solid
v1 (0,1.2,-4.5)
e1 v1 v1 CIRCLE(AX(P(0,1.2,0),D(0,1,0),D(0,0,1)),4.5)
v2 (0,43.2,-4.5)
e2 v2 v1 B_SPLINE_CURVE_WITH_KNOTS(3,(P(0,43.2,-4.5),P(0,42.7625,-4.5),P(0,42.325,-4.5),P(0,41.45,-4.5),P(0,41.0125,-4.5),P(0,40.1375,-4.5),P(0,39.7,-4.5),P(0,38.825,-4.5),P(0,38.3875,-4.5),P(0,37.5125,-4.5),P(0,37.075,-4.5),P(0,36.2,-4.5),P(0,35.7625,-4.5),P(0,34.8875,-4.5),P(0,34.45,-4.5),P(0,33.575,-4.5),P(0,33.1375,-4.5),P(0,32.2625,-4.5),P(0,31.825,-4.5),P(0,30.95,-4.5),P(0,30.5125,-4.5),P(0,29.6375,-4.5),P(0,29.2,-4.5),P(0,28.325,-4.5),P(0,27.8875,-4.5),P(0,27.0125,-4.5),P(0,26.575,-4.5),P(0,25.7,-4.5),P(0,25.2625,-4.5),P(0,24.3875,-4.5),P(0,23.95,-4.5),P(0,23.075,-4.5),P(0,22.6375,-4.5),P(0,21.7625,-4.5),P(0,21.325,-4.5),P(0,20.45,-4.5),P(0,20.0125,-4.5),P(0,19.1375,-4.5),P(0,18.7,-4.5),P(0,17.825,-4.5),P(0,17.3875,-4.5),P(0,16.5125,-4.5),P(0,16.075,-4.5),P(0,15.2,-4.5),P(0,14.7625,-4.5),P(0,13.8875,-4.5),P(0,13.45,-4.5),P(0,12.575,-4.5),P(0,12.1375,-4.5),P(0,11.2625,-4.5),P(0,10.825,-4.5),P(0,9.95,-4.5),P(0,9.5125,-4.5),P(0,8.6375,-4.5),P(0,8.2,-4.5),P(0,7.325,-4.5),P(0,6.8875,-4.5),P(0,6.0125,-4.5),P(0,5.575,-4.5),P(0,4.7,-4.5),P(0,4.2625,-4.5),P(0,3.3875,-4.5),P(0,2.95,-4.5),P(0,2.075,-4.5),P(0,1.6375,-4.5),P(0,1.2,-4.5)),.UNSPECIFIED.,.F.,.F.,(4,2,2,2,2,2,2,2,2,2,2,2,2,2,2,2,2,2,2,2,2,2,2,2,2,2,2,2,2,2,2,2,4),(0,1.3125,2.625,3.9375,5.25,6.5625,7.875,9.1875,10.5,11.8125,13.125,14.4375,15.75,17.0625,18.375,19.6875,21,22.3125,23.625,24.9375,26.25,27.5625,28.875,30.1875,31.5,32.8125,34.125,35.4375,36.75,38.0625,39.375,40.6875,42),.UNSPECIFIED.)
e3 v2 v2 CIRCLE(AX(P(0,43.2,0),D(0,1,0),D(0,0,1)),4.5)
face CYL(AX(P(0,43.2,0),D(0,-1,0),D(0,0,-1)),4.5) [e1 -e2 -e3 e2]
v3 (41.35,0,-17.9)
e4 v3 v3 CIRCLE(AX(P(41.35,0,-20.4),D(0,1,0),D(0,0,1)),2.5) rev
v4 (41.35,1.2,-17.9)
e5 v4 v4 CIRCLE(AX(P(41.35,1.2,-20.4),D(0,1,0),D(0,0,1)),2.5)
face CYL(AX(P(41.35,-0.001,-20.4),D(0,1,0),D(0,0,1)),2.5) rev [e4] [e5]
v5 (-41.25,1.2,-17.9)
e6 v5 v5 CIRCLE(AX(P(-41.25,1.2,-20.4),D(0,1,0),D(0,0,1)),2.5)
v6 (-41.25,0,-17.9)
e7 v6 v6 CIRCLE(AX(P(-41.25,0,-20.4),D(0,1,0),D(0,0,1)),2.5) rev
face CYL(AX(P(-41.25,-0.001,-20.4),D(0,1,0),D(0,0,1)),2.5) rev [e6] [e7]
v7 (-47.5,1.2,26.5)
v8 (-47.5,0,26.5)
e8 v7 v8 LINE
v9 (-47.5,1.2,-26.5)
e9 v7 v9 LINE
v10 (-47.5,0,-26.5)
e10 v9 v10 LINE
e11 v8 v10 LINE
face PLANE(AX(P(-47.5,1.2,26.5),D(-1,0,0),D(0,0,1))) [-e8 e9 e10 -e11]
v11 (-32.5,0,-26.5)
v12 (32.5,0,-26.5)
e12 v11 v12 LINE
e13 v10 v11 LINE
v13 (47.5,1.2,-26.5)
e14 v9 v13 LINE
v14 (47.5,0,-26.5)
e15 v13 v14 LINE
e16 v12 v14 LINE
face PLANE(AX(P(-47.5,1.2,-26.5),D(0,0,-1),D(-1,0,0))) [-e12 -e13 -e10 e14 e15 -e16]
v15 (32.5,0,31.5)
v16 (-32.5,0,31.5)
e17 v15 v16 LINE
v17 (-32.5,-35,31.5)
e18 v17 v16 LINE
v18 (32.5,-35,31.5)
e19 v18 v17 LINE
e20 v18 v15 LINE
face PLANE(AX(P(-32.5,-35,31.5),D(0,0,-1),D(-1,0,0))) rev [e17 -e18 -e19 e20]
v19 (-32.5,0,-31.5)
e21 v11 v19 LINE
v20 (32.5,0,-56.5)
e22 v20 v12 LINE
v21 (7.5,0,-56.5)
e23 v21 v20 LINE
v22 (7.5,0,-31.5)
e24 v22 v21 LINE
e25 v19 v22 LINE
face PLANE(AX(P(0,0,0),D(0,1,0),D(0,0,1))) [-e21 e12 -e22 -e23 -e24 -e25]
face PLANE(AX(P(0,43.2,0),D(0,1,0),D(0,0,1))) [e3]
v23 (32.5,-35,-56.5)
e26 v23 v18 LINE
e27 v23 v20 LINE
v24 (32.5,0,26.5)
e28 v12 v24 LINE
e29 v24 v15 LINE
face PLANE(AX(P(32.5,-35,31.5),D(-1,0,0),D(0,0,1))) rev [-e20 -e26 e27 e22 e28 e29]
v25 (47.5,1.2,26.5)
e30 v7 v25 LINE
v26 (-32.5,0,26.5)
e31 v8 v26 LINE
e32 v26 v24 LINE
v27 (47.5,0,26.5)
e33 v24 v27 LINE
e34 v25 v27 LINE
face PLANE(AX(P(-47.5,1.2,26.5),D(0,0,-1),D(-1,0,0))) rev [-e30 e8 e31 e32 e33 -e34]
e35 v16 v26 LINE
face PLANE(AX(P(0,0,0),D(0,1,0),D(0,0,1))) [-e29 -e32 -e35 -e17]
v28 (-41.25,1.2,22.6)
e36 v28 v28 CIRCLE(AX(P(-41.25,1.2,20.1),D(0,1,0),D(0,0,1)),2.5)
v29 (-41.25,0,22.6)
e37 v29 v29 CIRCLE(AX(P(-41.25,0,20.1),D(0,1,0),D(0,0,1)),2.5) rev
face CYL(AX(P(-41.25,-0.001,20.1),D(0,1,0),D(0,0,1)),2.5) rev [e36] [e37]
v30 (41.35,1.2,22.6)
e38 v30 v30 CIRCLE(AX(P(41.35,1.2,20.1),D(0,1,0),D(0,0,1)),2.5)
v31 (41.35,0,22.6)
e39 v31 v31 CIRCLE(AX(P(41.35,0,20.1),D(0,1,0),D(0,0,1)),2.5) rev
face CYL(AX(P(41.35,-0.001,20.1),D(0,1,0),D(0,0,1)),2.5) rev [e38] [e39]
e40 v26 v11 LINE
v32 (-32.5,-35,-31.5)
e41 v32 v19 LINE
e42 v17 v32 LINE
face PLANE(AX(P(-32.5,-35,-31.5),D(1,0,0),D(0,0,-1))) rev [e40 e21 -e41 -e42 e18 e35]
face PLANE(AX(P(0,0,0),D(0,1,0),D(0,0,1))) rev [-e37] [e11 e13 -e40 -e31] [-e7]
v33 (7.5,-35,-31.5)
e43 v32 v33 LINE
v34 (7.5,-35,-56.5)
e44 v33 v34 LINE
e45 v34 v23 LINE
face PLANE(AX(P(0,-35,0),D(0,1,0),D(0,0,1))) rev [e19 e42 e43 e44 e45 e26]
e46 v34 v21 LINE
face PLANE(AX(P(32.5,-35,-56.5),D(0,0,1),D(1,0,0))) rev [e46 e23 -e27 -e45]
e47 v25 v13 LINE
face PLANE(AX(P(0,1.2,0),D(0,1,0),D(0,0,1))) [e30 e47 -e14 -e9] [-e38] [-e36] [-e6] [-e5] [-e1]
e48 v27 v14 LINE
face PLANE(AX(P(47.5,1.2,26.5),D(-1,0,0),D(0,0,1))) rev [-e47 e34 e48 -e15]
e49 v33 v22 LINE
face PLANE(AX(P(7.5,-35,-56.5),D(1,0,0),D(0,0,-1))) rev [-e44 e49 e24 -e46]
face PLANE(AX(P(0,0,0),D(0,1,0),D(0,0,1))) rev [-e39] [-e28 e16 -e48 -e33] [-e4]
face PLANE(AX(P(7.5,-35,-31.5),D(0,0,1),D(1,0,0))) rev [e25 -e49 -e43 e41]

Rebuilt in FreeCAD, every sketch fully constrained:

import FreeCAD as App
import Part
import Sketcher
from FreeCAD import Vector


def add_polygon(sketch, points):
    """Adds a closed chain of lines whose ends are joined by coincident constraints."""
    first, n = sketch.GeometryCount, len(points)
    for a, b in zip(points, points[1:] + points[:1]):
        sketch.addGeometry(Part.LineSegment(App.Vector(*a, 0), App.Vector(*b, 0)), False)
    for i in range(n):
        sketch.addConstraint(Sketcher.Constraint("Coincident", first + i, 2, first + (i + 1) % n, 1))

doc = App.newDocument("Part")
body = doc.addObject("PartDesign::Body", "Body")

sketch1 = body.newObject("Sketcher::SketchObject", "Sketch")
sketch1.AttachmentSupport = (doc.getObject("XZ_Plane"), [""])
sketch1.MapMode = "FlatFace"
add_polygon(sketch1, [(-48, -26), (-48, 26), (48, 26), (48, -26)])
sketch1.addConstraint([
    Sketcher.Constraint("Vertical", 0),
    Sketcher.Constraint("Horizontal", 1),
    Sketcher.Constraint("Vertical", 2),
    Sketcher.Constraint("Horizontal", 3),
    Sketcher.Constraint("Symmetric", 0, 2, 2, 2, -1, 1),
    Sketcher.Constraint("DistanceX", 1, 1, 1, 2, 95.0),
    Sketcher.Constraint("DistanceY", 0, 1, 0, 2, 53.0),
])
pad1 = body.newObject("PartDesign::Pad", "Pad")
pad1.Profile = sketch1
pad1.Length = 1.2
pad1.Reversed = True

sketch2 = body.newObject("Sketcher::SketchObject", "Sketch001")
sketch2.AttachmentSupport = (doc.getObject("XZ_Plane"), [""])
sketch2.MapMode = "FlatFace"
sketch2.AttachmentOffset = App.Placement(Vector(0, 0, -1.2), App.Rotation())
sketch2.addGeometry(Part.Circle(Vector(-41.2, -20.4, 0), Vector(0, 0, 1), 2.5), False)
sketch2.addConstraint([
    Sketcher.Constraint("Diameter", 0, 5.0),
    Sketcher.Constraint("DistanceY", 0, 3, -1, 1, 20.4),
    Sketcher.Constraint("DistanceX", 0, 3, -1, 1, 41.25),
])
pocket1 = body.newObject("PartDesign::Pocket", "Pocket")
pocket1.Profile = sketch2
pocket1.Type = "UpToFirst"
pocket1.Reversed = True

sketch3 = body.newObject("Sketcher::SketchObject", "Sketch002")
sketch3.AttachmentSupport = (doc.getObject("XZ_Plane"), [""])
sketch3.MapMode = "FlatFace"
sketch3.AttachmentOffset = App.Placement(Vector(0, 0, -1.2), App.Rotation())
sketch3.addGeometry(Part.Circle(Vector(41.4, -20.4, 0), Vector(0, 0, 1), 2.5), False)
sketch3.addConstraint([
    Sketcher.Constraint("Diameter", 0, 5.0),
    Sketcher.Constraint("DistanceY", 0, 3, -1, 1, 20.4),
    Sketcher.Constraint("DistanceX", -1, 1, 0, 3, 41.35),
])
pocket2 = body.newObject("PartDesign::Pocket", "Pocket001")
pocket2.Profile = sketch3
pocket2.Type = "UpToFirst"
pocket2.Reversed = True

sketch4 = body.newObject("Sketcher::SketchObject", "Sketch003")
sketch4.AttachmentSupport = (doc.getObject("XZ_Plane"), [""])
sketch4.MapMode = "FlatFace"
sketch4.AttachmentOffset = App.Placement(Vector(0, 0, -1.2), App.Rotation())
sketch4.addGeometry(Part.Circle(Vector(-41.2, 20.1, 0), Vector(0, 0, 1), 2.5), False)
sketch4.addConstraint([
    Sketcher.Constraint("Diameter", 0, 5.0),
    Sketcher.Constraint("DistanceY", -1, 1, 0, 3, 20.1),
    Sketcher.Constraint("DistanceX", 0, 3, -1, 1, 41.25),
])
pocket3 = body.newObject("PartDesign::Pocket", "Pocket002")
pocket3.Profile = sketch4
pocket3.Type = "UpToFirst"
pocket3.Reversed = True

sketch5 = body.newObject("Sketcher::SketchObject", "Sketch004")
sketch5.AttachmentSupport = (doc.getObject("XZ_Plane"), [""])
sketch5.MapMode = "FlatFace"
sketch5.AttachmentOffset = App.Placement(Vector(0, 0, -1.2), App.Rotation())
sketch5.addGeometry(Part.Circle(Vector(41.4, 20.1, 0), Vector(0, 0, 1), 2.5), False)
sketch5.addConstraint([
    Sketcher.Constraint("Diameter", 0, 5.0),
    Sketcher.Constraint("DistanceY", -1, 1, 0, 3, 20.1),
    Sketcher.Constraint("DistanceX", -1, 1, 0, 3, 41.35),
])
pocket4 = body.newObject("PartDesign::Pocket", "Pocket003")
pocket4.Profile = sketch5
pocket4.Type = "UpToFirst"
pocket4.Reversed = True

sketch6 = body.newObject("Sketcher::SketchObject", "Sketch005")
sketch6.AttachmentSupport = (doc.getObject("XZ_Plane"), [""])
sketch6.MapMode = "FlatFace"
add_polygon(sketch6, [(8, -56), (32, -56), (32, 32), (-32, 32), (-32, -32), (8, -32)])
sketch6.addConstraint([
    Sketcher.Constraint("Horizontal", 0),
    Sketcher.Constraint("Vertical", 1),
    Sketcher.Constraint("Horizontal", 2),
    Sketcher.Constraint("Vertical", 3),
    Sketcher.Constraint("Horizontal", 4),
    Sketcher.Constraint("Vertical", 5),
    Sketcher.Constraint("Symmetric", 1, 2, 3, 2, -1, 1),
    Sketcher.Constraint("Equal", 0, 5),
    Sketcher.Constraint("DistanceX", 0, 1, 0, 2, 25.0),
    Sketcher.Constraint("DistanceX", 2, 2, 2, 1, 65.0),
    Sketcher.Constraint("DistanceY", 1, 1, 1, 2, 88.0),
])
pad2 = body.newObject("PartDesign::Pad", "Pad001")
pad2.Profile = sketch6
pad2.Length = 35

sketch7 = body.newObject("Sketcher::SketchObject", "Sketch006")
sketch7.AttachmentSupport = (doc.getObject("XZ_Plane"), [""])
sketch7.MapMode = "FlatFace"
sketch7.AttachmentOffset = App.Placement(Vector(0, 0, -1.2), App.Rotation())
sketch7.addGeometry(Part.Circle(Vector(0, 0, 0), Vector(0, 0, 1), 4.5), False)
sketch7.addConstraint([
    Sketcher.Constraint("Coincident", 0, 3, -1, 1),
    Sketcher.Constraint("Diameter", 0, 9.0),
])
pad3 = body.newObject("PartDesign::Pad", "Pad002")
pad3.Profile = sketch7
pad3.Length = 42
pad3.Reversed = True

doc.recompute()
